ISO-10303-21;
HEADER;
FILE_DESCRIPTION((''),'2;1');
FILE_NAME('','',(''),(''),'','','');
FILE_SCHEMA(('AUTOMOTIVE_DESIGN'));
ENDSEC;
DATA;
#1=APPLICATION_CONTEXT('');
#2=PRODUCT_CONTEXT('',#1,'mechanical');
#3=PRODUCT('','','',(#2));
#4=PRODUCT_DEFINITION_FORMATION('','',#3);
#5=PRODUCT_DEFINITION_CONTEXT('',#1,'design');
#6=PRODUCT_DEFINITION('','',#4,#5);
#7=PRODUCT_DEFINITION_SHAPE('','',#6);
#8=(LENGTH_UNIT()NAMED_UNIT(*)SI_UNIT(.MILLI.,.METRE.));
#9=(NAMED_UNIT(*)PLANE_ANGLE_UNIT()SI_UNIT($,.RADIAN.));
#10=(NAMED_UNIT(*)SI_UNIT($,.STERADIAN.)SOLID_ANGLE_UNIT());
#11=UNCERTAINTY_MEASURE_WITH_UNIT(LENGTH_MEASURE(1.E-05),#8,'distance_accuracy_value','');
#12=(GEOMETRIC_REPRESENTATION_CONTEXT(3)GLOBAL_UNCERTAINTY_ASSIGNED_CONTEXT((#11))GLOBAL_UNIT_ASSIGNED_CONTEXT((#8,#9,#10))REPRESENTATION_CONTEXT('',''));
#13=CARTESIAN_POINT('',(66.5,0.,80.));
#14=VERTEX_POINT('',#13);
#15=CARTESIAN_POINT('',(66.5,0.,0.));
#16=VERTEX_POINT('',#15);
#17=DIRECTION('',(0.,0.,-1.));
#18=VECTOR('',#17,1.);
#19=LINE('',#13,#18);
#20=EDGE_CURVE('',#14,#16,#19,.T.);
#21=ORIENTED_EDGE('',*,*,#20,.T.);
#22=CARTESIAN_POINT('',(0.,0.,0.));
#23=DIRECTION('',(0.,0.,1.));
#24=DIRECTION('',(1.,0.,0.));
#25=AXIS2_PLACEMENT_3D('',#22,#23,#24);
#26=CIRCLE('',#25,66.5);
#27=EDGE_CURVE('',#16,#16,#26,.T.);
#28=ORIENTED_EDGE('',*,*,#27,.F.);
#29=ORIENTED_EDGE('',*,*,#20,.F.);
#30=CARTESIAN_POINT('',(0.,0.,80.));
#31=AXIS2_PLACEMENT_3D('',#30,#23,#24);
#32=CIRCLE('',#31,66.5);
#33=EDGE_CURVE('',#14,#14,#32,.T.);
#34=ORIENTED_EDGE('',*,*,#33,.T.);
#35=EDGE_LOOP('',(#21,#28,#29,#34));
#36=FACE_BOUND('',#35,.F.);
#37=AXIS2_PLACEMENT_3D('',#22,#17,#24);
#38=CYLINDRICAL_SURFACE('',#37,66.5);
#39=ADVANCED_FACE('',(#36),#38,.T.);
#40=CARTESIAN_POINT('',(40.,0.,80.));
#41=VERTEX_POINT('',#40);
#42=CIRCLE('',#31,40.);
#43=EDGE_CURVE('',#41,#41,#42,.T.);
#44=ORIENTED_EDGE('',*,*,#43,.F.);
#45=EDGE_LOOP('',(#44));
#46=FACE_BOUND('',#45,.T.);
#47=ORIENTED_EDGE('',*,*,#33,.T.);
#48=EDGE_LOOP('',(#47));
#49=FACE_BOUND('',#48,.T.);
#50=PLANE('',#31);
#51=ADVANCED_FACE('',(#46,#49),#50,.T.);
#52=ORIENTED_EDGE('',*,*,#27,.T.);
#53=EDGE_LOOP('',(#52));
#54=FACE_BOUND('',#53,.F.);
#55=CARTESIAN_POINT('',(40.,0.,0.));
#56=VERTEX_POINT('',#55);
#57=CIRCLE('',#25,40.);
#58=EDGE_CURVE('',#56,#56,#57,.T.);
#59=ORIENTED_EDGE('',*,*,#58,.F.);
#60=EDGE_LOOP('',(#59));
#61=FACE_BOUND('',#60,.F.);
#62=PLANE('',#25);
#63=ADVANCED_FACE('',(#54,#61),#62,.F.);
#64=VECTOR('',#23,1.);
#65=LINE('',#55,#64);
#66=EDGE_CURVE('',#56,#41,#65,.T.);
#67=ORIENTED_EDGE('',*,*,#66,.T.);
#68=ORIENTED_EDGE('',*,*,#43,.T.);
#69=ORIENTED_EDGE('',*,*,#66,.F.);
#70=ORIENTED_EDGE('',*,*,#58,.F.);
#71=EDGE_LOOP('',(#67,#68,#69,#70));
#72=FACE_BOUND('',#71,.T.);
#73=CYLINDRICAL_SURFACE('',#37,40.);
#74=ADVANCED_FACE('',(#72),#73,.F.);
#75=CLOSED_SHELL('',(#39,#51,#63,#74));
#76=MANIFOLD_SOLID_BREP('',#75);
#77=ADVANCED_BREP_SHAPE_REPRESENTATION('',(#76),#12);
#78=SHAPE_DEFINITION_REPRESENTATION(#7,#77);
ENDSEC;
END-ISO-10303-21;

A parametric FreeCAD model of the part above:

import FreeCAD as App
import Part
import Sketcher
from FreeCAD import Vector
Q = App.Units.Quantity

doc = App.newDocument("Part")
body = doc.addObject("PartDesign::Body", "Body")

# Sketch on XY plane
sketch1 = doc.addObject("Sketcher::SketchObject", "Sketch")
body.addObject(sketch1)
sketch1.AttachmentSupport = (doc.XY_Plane, [""])
sketch1.MapMode = "FlatFace"
sketch1.addGeometry([
    Part.Circle(Vector(0, 0, 0), Vector(0, 0, 1), 66),
    Part.Circle(Vector(0, 0, 0), Vector(0, 0, 1), 40),
], False)
sketch1.addConstraint([
    Sketcher.Constraint("Coincident", 0, 3, -1, 1),
    Sketcher.Constraint("Coincident", 1, 3, -1, 1),
    Sketcher.Constraint("Diameter", 0, Q("133 mm")),
    Sketcher.Constraint("Diameter", 1, Q("80 mm")),
])
pad1 = doc.addObject("PartDesign::Pad", "Pad")
body.addObject(pad1)
pad1.Profile = sketch1
pad1.Length = 80

# Sketch on XY plane
sketch2 = doc.addObject("Sketcher::SketchObject", "Sketch001")
body.addObject(sketch2)
sketch2.AttachmentSupport = (doc.XY_Plane, [""])
sketch2.MapMode = "FlatFace"
sketch2.addGeometry([
    Part.Circle(Vector(0, 0, 0), Vector(0, 0, 1), 66),
    Part.Circle(Vector(0, 0, 0), Vector(0, 0, 1), 40),
], False)
sketch2.addConstraint([
    Sketcher.Constraint("Coincident", 0, 3, -1, 1),
    Sketcher.Constraint("Coincident", 1, 3, -1, 1),
    Sketcher.Constraint("Diameter", 0, Q("133 mm")),
    Sketcher.Constraint("Diameter", 1, Q("80 mm")),
])
pad2 = doc.addObject("PartDesign::Pad", "Pad001")
body.addObject(pad2)
pad2.Profile = sketch2
pad2.Length = 25

doc.recompute()
